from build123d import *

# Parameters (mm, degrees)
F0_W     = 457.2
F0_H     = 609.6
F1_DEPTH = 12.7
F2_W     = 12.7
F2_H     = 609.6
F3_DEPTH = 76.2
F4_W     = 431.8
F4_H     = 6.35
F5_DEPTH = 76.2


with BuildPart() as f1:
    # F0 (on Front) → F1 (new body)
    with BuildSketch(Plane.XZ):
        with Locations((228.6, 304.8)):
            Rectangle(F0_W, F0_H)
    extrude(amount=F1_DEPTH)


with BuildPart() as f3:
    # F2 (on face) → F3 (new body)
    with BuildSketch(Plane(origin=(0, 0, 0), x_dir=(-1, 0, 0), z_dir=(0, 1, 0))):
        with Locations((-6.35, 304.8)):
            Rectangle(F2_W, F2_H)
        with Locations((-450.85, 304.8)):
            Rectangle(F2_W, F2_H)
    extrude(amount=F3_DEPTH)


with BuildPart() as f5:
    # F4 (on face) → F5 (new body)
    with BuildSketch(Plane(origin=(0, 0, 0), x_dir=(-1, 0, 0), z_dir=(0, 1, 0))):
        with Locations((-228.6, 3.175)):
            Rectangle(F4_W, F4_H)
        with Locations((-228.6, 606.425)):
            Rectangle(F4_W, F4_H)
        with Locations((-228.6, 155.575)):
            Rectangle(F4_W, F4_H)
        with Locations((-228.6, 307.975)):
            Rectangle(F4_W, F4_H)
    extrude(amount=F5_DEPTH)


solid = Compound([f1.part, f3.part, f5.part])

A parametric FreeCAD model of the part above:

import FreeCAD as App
import Part
import Sketcher
Q = App.Units.Quantity

doc = App.newDocument("Part")
params = doc.addObject("Spreadsheet::Sheet", "Params")
for row, (alias, value) in enumerate([
    ("sketch1_width", "18 in"),
    ("sketch1_height", "24 in"),
    ("pad1_length", "0.5 in"),
    ("sketch2_height", "24 in"),
    ("sketch2_width", "0.5 in"),
    ("pad2_length", "3 in"),
    ("sketch3_width", "17 in"),
    ("sketch3_height", "0.25 in"),
    ("pad3_length", "3 in"),
], start=1):
    params.set(f"A{row}", alias)
    params.set(f"B{row}", "=" + value)
    params.setAlias(f"B{row}", alias)

body = doc.addObject("PartDesign::Body", "Body")

# Sketch on XZ plane
sketch1 = doc.addObject("Sketcher::SketchObject", "Sketch")
body.addObject(sketch1)
sketch1.AttachmentSupport = (doc.XZ_Plane, [""])
sketch1.MapMode = "FlatFace"
sketch1.addGeometry(Part.LineSegment(App.Vector(0, 610, 0), App.Vector(0, 0, 0)), False)
sketch1.addGeometry(Part.LineSegment(App.Vector(0, 0, 0), App.Vector(457, 0, 0)), False)
sketch1.addGeometry(Part.LineSegment(App.Vector(457, 0, 0), App.Vector(457, 610, 0)), False)
sketch1.addGeometry(Part.LineSegment(App.Vector(457, 610, 0), App.Vector(0, 610, 0)), False)
sketch1.addConstraint(Sketcher.Constraint("Coincident", 0, 2, 1, 1))
sketch1.addConstraint(Sketcher.Constraint("Coincident", 1, 2, 2, 1))
sketch1.addConstraint(Sketcher.Constraint("Coincident", 2, 2, 3, 1))
sketch1.addConstraint(Sketcher.Constraint("Coincident", 3, 2, 0, 1))
sketch1.addConstraint(Sketcher.Constraint("Vertical", 0))
sketch1.addConstraint(Sketcher.Constraint("Horizontal", 1))
sketch1.addConstraint(Sketcher.Constraint("Vertical", 2))
sketch1.addConstraint(Sketcher.Constraint("Horizontal", 3))
sketch1.addConstraint(Sketcher.Constraint("Coincident", 0, 2, -1, 1))
sketch1.addConstraint(Sketcher.Constraint("DistanceX", 1, 1, 1, 2, Q("18 in")))
sketch1.addConstraint(Sketcher.Constraint("DistanceY", 0, 2, 0, 1, Q("24 in")))
sketch1.setExpression("Constraints[9]", "Params.sketch1_width")
sketch1.setExpression("Constraints[10]", "Params.sketch1_height")
pad1 = doc.addObject("PartDesign::Pad", "Pad")
body.addObject(pad1)
pad1.Profile = sketch1
pad1.setExpression("Length", "Params.pad1_length")
body2 = doc.addObject("PartDesign::Body", "Body001")
body2.AllowCompound = True

# Sketch on XZ plane
sketch2 = doc.addObject("Sketcher::SketchObject", "Sketch001")
body2.addObject(sketch2)
sketch2.AttachmentSupport = (doc.getObject("XZ_Plane001"), [""])
sketch2.MapMode = "FlatFace"
sketch2.addGeometry(Part.LineSegment(App.Vector(13, 610, 0), App.Vector(13, 0, 0)), False)
sketch2.addGeometry(Part.LineSegment(App.Vector(13, 0, 0), App.Vector(0, 0, 0)), False)
sketch2.addGeometry(Part.LineSegment(App.Vector(0, 0, 0), App.Vector(0, 610, 0)), False)
sketch2.addGeometry(Part.LineSegment(App.Vector(0, 610, 0), App.Vector(13, 610, 0)), False)
sketch2.addGeometry(Part.LineSegment(App.Vector(457, 610, 0), App.Vector(457, 0, 0)), False)
sketch2.addGeometry(Part.LineSegment(App.Vector(457, 0, 0), App.Vector(444, 0, 0)), False)
sketch2.addGeometry(Part.LineSegment(App.Vector(444, 0, 0), App.Vector(444, 610, 0)), False)
sketch2.addGeometry(Part.LineSegment(App.Vector(444, 610, 0), App.Vector(457, 610, 0)), False)
sketch2.addConstraint(Sketcher.Constraint("Coincident", 0, 2, 1, 1))
sketch2.addConstraint(Sketcher.Constraint("Coincident", 1, 2, 2, 1))
sketch2.addConstraint(Sketcher.Constraint("Coincident", 2, 2, 3, 1))
sketch2.addConstraint(Sketcher.Constraint("Coincident", 3, 2, 0, 1))
sketch2.addConstraint(Sketcher.Constraint("Coincident", 4, 2, 5, 1))
sketch2.addConstraint(Sketcher.Constraint("Coincident", 5, 2, 6, 1))
sketch2.addConstraint(Sketcher.Constraint("Coincident", 6, 2, 7, 1))
sketch2.addConstraint(Sketcher.Constraint("Coincident", 7, 2, 4, 1))
sketch2.addConstraint(Sketcher.Constraint("Vertical", 0))
sketch2.addConstraint(Sketcher.Constraint("Horizontal", 1))
sketch2.addConstraint(Sketcher.Constraint("Vertical", 2))
sketch2.addConstraint(Sketcher.Constraint("Horizontal", 3))
sketch2.addConstraint(Sketcher.Constraint("Vertical", 4))
sketch2.addConstraint(Sketcher.Constraint("Horizontal", 5))
sketch2.addConstraint(Sketcher.Constraint("Vertical", 6))
sketch2.addConstraint(Sketcher.Constraint("Horizontal", 7))
sketch2.addConstraint(Sketcher.Constraint("Coincident", 1, 2, -1, 1))
sketch2.addConstraint(Sketcher.Constraint("PointOnObject", 4, 2, -1))
sketch2.addConstraint(Sketcher.Constraint("Horizontal", 3, 2, 6, 2))
sketch2.addConstraint(Sketcher.Constraint("Equal", 3, 5))
sketch2.addConstraint(Sketcher.Constraint("DistanceY", 0, 2, 0, 1, Q("24 in")))
sketch2.addConstraint(Sketcher.Constraint("DistanceX", 1, 2, 1, 1, Q("0.5 in")))
sketch2.addConstraint(Sketcher.Constraint("DistanceX", -1, 1, 4, 2, Q("18 in")))
sketch2.setExpression("Constraints[20]", "Params.sketch2_height")
sketch2.setExpression("Constraints[21]", "Params.sketch2_width")
pad2 = doc.addObject("PartDesign::Pad", "Pad001")
body2.addObject(pad2)
pad2.Profile = sketch2
pad2.setExpression("Length", "Params.pad2_length")
pad2.Reversed = True
body3 = doc.addObject("PartDesign::Body", "Body002")
body3.AllowCompound = True

# Sketch on XZ plane
sketch3 = doc.addObject("Sketcher::SketchObject", "Sketch002")
body3.addObject(sketch3)
sketch3.AttachmentSupport = (doc.getObject("XZ_Plane002"), [""])
sketch3.MapMode = "FlatFace"
sketch3.addGeometry(Part.LineSegment(App.Vector(444, 6, 0), App.Vector(444, 0, 0)), False)
sketch3.addGeometry(Part.LineSegment(App.Vector(444, 0, 0), App.Vector(13, 0, 0)), False)
sketch3.addGeometry(Part.LineSegment(App.Vector(13, 0, 0), App.Vector(13, 6, 0)), False)
sketch3.addGeometry(Part.LineSegment(App.Vector(13, 6, 0), App.Vector(444, 6, 0)), False)
sketch3.addGeometry(Part.LineSegment(App.Vector(444, 610, 0), App.Vector(444, 603, 0)), False)
sketch3.addGeometry(Part.LineSegment(App.Vector(444, 603, 0), App.Vector(13, 603, 0)), False)
sketch3.addGeometry(Part.LineSegment(App.Vector(13, 603, 0), App.Vector(13, 610, 0)), False)
sketch3.addGeometry(Part.LineSegment(App.Vector(13, 610, 0), App.Vector(444, 610, 0)), False)
sketch3.addGeometry(Part.LineSegment(App.Vector(444, 159, 0), App.Vector(444, 152, 0)), False)
sketch3.addGeometry(Part.LineSegment(App.Vector(444, 152, 0), App.Vector(13, 152, 0)), False)
sketch3.addGeometry(Part.LineSegment(App.Vector(13, 152, 0), App.Vector(13, 159, 0)), False)
sketch3.addGeometry(Part.LineSegment(App.Vector(13, 159, 0), App.Vector(444, 159, 0)), False)
sketch3.addGeometry(Part.LineSegment(App.Vector(444, 311, 0), App.Vector(444, 305, 0)), False)
sketch3.addGeometry(Part.LineSegment(App.Vector(444, 305, 0), App.Vector(13, 305, 0)), False)
sketch3.addGeometry(Part.LineSegment(App.Vector(13, 305, 0), App.Vector(13, 311, 0)), False)
sketch3.addGeometry(Part.LineSegment(App.Vector(13, 311, 0), App.Vector(444, 311, 0)), False)
sketch3.addConstraint(Sketcher.Constraint("Coincident", 0, 2, 1, 1))
sketch3.addConstraint(Sketcher.Constraint("Coincident", 1, 2, 2, 1))
sketch3.addConstraint(Sketcher.Constraint("Coincident", 2, 2, 3, 1))
sketch3.addConstraint(Sketcher.Constraint("Coincident", 3, 2, 0, 1))
sketch3.addConstraint(Sketcher.Constraint("Coincident", 4, 2, 5, 1))
sketch3.addConstraint(Sketcher.Constraint("Coincident", 5, 2, 6, 1))
sketch3.addConstraint(Sketcher.Constraint("Coincident", 6, 2, 7, 1))
sketch3.addConstraint(Sketcher.Constraint("Coincident", 7, 2, 4, 1))
sketch3.addConstraint(Sketcher.Constraint("Coincident", 8, 2, 9, 1))
sketch3.addConstraint(Sketcher.Constraint("Coincident", 9, 2, 10, 1))
sketch3.addConstraint(Sketcher.Constraint("Coincident", 10, 2, 11, 1))
sketch3.addConstraint(Sketcher.Constraint("Coincident", 11, 2, 8, 1))
sketch3.addConstraint(Sketcher.Constraint("Coincident", 12, 2, 13, 1))
sketch3.addConstraint(Sketcher.Constraint("Coincident", 13, 2, 14, 1))
sketch3.addConstraint(Sketcher.Constraint("Coincident", 14, 2, 15, 1))
sketch3.addConstraint(Sketcher.Constraint("Coincident", 15, 2, 12, 1))
sketch3.addConstraint(Sketcher.Constraint("Vertical", 0))
sketch3.addConstraint(Sketcher.Constraint("Horizontal", 1))
sketch3.addConstraint(Sketcher.Constraint("Vertical", 2))
sketch3.addConstraint(Sketcher.Constraint("Horizontal", 3))
sketch3.addConstraint(Sketcher.Constraint("Vertical", 4))
sketch3.addConstraint(Sketcher.Constraint("Horizontal", 5))
sketch3.addConstraint(Sketcher.Constraint("Vertical", 6))
sketch3.addConstraint(Sketcher.Constraint("Horizontal", 7))
sketch3.addConstraint(Sketcher.Constraint("Vertical", 8))
sketch3.addConstraint(Sketcher.Constraint("Horizontal", 9))
sketch3.addConstraint(Sketcher.Constraint("Vertical", 10))
sketch3.addConstraint(Sketcher.Constraint("Horizontal", 11))
sketch3.addConstraint(Sketcher.Constraint("Vertical", 12))
sketch3.addConstraint(Sketcher.Constraint("Horizontal", 13))
sketch3.addConstraint(Sketcher.Constraint("Vertical", 14))
sketch3.addConstraint(Sketcher.Constraint("Horizontal", 15))
sketch3.addConstraint(Sketcher.Constraint("PointOnObject", 0, 2, -1))
sketch3.addConstraint(Sketcher.Constraint("Vertical", 3, 2, 4, 2))
sketch3.addConstraint(Sketcher.Constraint("Vertical", 2, 2, 5, 2))
sketch3.addConstraint(Sketcher.Constraint("Vertical", 7, 2, 8, 2))
sketch3.addConstraint(Sketcher.Constraint("Vertical", 6, 2, 9, 2))
sketch3.addConstraint(Sketcher.Constraint("Vertical", 11, 2, 12, 2))
sketch3.addConstraint(Sketcher.Constraint("Vertical", 10, 2, 13, 2))
sketch3.addConstraint(Sketcher.Constraint("Equal", 2, 4))
sketch3.addConstraint(Sketcher.Constraint("Equal", 6, 8))
sketch3.addConstraint(Sketcher.Constraint("Equal", 10, 12))
sketch3.addConstraint(Sketcher.Constraint("DistanceX", 1, 2, 1, 1, Q("17 in")))
sketch3.addConstraint(Sketcher.Constraint("DistanceY", -1, 1, 6, 2, Q("24 in")))
sketch3.addConstraint(Sketcher.Constraint("DistanceY", -1, 1, 8, 2, Q("6 in")))
sketch3.addConstraint(Sketcher.Constraint("DistanceY", -1, 1, 12, 2, Q("12 in")))
sketch3.addConstraint(Sketcher.Constraint("DistanceY", 0, 2, 0, 1, Q("0.25 in")))
sketch3.addConstraint(Sketcher.Constraint("DistanceX", -1, 1, 0, 2, Q("17.5 in")))
sketch3.setExpression("Constraints[42]", "Params.sketch3_width")
sketch3.setExpression("Constraints[46]", "Params.sketch3_height")
pad3 = doc.addObject("PartDesign::Pad", "Pad002")
body3.addObject(pad3)
pad3.Profile = sketch3
pad3.setExpression("Length", "Params.pad3_length")
pad3.Reversed = True

doc.recompute()
